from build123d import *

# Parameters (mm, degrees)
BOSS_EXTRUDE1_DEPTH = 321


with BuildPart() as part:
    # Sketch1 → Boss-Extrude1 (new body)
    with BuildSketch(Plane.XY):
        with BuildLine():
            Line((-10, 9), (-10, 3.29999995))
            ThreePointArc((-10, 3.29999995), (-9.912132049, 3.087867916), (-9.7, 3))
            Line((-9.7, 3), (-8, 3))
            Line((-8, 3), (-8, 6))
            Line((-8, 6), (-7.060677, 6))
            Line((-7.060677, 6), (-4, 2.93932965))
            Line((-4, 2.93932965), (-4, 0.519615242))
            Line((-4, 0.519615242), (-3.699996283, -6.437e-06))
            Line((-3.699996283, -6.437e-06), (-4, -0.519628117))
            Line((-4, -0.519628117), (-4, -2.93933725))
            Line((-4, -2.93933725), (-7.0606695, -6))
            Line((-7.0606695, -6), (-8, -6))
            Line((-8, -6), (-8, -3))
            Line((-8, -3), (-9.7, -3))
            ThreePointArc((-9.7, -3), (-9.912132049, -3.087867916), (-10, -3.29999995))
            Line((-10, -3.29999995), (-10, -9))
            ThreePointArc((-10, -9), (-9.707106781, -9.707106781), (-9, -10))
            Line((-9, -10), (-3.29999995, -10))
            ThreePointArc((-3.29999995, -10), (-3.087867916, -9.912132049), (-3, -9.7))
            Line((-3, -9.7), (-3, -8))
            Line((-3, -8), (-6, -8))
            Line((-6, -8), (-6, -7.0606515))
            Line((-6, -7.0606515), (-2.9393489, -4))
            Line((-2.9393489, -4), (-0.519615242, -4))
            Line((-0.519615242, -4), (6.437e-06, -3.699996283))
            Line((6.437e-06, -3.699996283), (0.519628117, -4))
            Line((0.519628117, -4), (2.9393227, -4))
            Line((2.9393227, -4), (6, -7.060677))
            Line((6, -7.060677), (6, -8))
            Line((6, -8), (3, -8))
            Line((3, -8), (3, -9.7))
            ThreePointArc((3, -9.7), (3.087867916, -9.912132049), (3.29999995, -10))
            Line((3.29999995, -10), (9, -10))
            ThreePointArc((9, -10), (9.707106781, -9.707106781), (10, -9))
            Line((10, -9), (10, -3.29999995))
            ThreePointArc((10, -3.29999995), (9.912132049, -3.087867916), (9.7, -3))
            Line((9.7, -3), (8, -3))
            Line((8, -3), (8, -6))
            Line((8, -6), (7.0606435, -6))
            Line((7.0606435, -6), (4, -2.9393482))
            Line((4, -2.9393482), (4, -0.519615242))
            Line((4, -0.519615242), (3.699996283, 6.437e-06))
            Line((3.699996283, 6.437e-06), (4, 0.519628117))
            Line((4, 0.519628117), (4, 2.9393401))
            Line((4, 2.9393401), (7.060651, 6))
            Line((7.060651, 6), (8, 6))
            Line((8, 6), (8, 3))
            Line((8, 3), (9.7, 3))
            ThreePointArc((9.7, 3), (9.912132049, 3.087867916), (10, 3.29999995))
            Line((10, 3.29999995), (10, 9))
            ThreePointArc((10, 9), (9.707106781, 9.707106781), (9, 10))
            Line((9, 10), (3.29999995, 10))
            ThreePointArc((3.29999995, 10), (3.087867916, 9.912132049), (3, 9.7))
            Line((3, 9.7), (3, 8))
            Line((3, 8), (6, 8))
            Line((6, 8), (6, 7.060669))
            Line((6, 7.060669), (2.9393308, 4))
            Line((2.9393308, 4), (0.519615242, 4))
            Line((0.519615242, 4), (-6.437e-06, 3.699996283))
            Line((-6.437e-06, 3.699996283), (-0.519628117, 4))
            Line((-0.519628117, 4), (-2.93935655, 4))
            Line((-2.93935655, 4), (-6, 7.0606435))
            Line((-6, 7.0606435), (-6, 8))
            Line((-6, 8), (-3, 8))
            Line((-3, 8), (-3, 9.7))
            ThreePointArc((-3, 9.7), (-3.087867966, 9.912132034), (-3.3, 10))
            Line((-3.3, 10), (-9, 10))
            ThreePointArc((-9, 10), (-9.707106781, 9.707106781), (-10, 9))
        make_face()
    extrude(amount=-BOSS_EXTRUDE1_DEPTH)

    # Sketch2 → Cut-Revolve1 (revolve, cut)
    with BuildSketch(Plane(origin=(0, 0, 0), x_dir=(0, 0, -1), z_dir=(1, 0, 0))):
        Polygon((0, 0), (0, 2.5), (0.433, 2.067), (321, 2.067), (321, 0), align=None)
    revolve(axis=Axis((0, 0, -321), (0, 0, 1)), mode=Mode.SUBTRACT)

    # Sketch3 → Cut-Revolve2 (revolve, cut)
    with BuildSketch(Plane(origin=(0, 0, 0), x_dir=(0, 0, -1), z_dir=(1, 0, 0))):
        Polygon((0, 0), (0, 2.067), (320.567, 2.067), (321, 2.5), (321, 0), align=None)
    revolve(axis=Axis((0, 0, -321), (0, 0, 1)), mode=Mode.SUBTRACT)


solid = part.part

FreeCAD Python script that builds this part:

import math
import FreeCAD as App
import Part
import Sketcher

V = App.Vector
Q = App.Units.Quantity


def add_polygon(sketch, points):
    """Adds a closed chain of lines whose ends are joined by coincident constraints."""
    first, n = sketch.GeometryCount, len(points)
    for a, b in zip(points, points[1:] + points[:1]):
        sketch.addGeometry(Part.LineSegment(App.Vector(*a, 0), App.Vector(*b, 0)), False)
    for i in range(n):
        sketch.addConstraint(Sketcher.Constraint("Coincident", first + i, 2, first + (i + 1) % n, 1))

doc = App.newDocument("Part")
params = doc.addObject("Spreadsheet::Sheet", "Params")
for row, (alias, value) in enumerate([
    ("sketch1_radius", "1 mm"),
    ("sketch1_radius2", "0.3 mm"),
    ("sketch1_width", "3 mm"),
    ("sketch1_width2", "1.7 mm"),
    ("sketch1_width3", "5.7 mm"),
    ("pad1_length", "321 mm"),
    ("sketch2_height", "321 mm"),
    ("sketch2_width", "2.5 mm"),
    ("groove_angle", "360 deg"),
    ("sketch3_height", "321 mm"),
    ("sketch3_width", "2.5 mm"),
    ("groove2_angle", "360 deg"),
], start=1):
    params.set(f"A{row}", alias)
    params.set(f"B{row}", "=" + value)
    params.setAlias(f"B{row}", alias)

body = doc.addObject("PartDesign::Body", "Body")

# Sketch on XY plane
sketch1 = body.newObject("Sketcher::SketchObject", "Sketch")
sketch1.AttachmentSupport = (doc.getObject("XY_Plane"), [""])
sketch1.MapMode = "FlatFace"
sketch1.addGeometry([
    Part.LineSegment(V(-10, 9, 0), V(-10, 3.3, 0)),  # 0
    Part.ArcOfCircle(Part.Circle(V(-9.7, 3.3, 0), V(0, 0, 1), 0.3), math.radians(180), math.radians(270)),  # 1
    Part.LineSegment(V(-9.7, 3, 0), V(-8, 3, 0)),  # 2
    Part.LineSegment(V(-8, 3, 0), V(-8, 6, 0)),  # 3
    Part.LineSegment(V(-8, 6, 0), V(-7.06, 6, 0)),  # 4
    Part.LineSegment(V(-7.06, 6, 0), V(-4, 2.94, 0)),  # 5
    Part.LineSegment(V(-4, 2.94, 0), V(-4, 0.52, 0)),  # 6
    Part.LineSegment(V(-4, 0.52, 0), V(-3.7, 0, 0)),  # 7
    Part.LineSegment(V(-3.7, 0, 0), V(-4, -0.52, 0)),  # 8
    Part.LineSegment(V(-4, -0.52, 0), V(-4, -2.94, 0)),  # 9
    Part.LineSegment(V(-4, -2.94, 0), V(-7.06, -6, 0)),  # 10
    Part.LineSegment(V(-7.06, -6, 0), V(-8, -6, 0)),  # 11
    Part.LineSegment(V(-8, -6, 0), V(-8, -3, 0)),  # 12
    Part.LineSegment(V(-8, -3, 0), V(-9.7, -3, 0)),  # 13
    Part.ArcOfCircle(Part.Circle(V(-9.7, -3.3, 0), V(0, 0, 1), 0.3), math.radians(90), math.radians(180)),  # 14
    Part.LineSegment(V(-10, -3.3, 0), V(-10, -9, 0)),  # 15
    Part.ArcOfCircle(Part.Circle(V(-9, -9, 0), V(0, 0, 1), 1), math.radians(-180), math.radians(-90)),  # 16
    Part.LineSegment(V(-9, -10, 0), V(-3.3, -10, 0)),  # 17
    Part.ArcOfCircle(Part.Circle(V(-3.3, -9.7, 0), V(0, 0, 1), 0.3), math.radians(-90), math.radians(0)),  # 18
    Part.LineSegment(V(-3, -9.7, 0), V(-3, -8, 0)),  # 19
    Part.LineSegment(V(-3, -8, 0), V(-6, -8, 0)),  # 20
    Part.LineSegment(V(-6, -8, 0), V(-6, -7.06, 0)),  # 21
    Part.LineSegment(V(-6, -7.06, 0), V(-2.94, -4, 0)),  # 22
    Part.LineSegment(V(-2.94, -4, 0), V(-0.52, -4, 0)),  # 23
    Part.LineSegment(V(-0.52, -4, 0), V(0, -3.7, 0)),  # 24
    Part.LineSegment(V(0, -3.7, 0), V(0.52, -4, 0)),  # 25
    Part.LineSegment(V(0.52, -4, 0), V(2.94, -4, 0)),  # 26
    Part.LineSegment(V(2.94, -4, 0), V(6, -7.06, 0)),  # 27
    Part.LineSegment(V(6, -7.06, 0), V(6, -8, 0)),  # 28
    Part.LineSegment(V(6, -8, 0), V(3, -8, 0)),  # 29
    Part.LineSegment(V(3, -8, 0), V(3, -9.7, 0)),  # 30
    Part.ArcOfCircle(Part.Circle(V(3.3, -9.7, 0), V(0, 0, 1), 0.3), math.radians(180), math.radians(270)),  # 31
    Part.LineSegment(V(3.3, -10, 0), V(9, -10, 0)),  # 32
    Part.ArcOfCircle(Part.Circle(V(9, -9, 0), V(0, 0, 1), 1), math.radians(-90), math.radians(0)),  # 33
    Part.LineSegment(V(10, -9, 0), V(10, -3.3, 0)),  # 34
    Part.ArcOfCircle(Part.Circle(V(9.7, -3.3, 0), V(0, 0, 1), 0.3), math.radians(0), math.radians(90)),  # 35
    Part.LineSegment(V(9.7, -3, 0), V(8, -3, 0)),  # 36
    Part.LineSegment(V(8, -3, 0), V(8, -6, 0)),  # 37
    Part.LineSegment(V(8, -6, 0), V(7.06, -6, 0)),  # 38
    Part.LineSegment(V(7.06, -6, 0), V(4, -2.94, 0)),  # 39
    Part.LineSegment(V(4, -2.94, 0), V(4, -0.52, 0)),  # 40
    Part.LineSegment(V(4, -0.52, 0), V(3.7, 0, 0)),  # 41
    Part.LineSegment(V(3.7, 0, 0), V(4, 0.52, 0)),  # 42
    Part.LineSegment(V(4, 0.52, 0), V(4, 2.94, 0)),  # 43
    Part.LineSegment(V(4, 2.94, 0), V(7.06, 6, 0)),  # 44
    Part.LineSegment(V(7.06, 6, 0), V(8, 6, 0)),  # 45
    Part.LineSegment(V(8, 6, 0), V(8, 3, 0)),  # 46
    Part.LineSegment(V(8, 3, 0), V(9.7, 3, 0)),  # 47
    Part.ArcOfCircle(Part.Circle(V(9.7, 3.3, 0), V(0, 0, 1), 0.3), math.radians(-90), math.radians(0)),  # 48
    Part.LineSegment(V(10, 3.3, 0), V(10, 9, 0)),  # 49
    Part.ArcOfCircle(Part.Circle(V(9, 9, 0), V(0, 0, 1), 1), math.radians(0), math.radians(90)),  # 50
    Part.LineSegment(V(9, 10, 0), V(3.3, 10, 0)),  # 51
    Part.ArcOfCircle(Part.Circle(V(3.3, 9.7, 0), V(0, 0, 1), 0.3), math.radians(90), math.radians(180)),  # 52
    Part.LineSegment(V(3, 9.7, 0), V(3, 8, 0)),  # 53
    Part.LineSegment(V(3, 8, 0), V(6, 8, 0)),  # 54
    Part.LineSegment(V(6, 8, 0), V(6, 7.06, 0)),  # 55
    Part.LineSegment(V(6, 7.06, 0), V(2.94, 4, 0)),  # 56
    Part.LineSegment(V(2.94, 4, 0), V(0.52, 4, 0)),  # 57
    Part.LineSegment(V(0.52, 4, 0), V(0, 3.7, 0)),  # 58
    Part.LineSegment(V(0, 3.7, 0), V(-0.52, 4, 0)),  # 59
    Part.LineSegment(V(-0.52, 4, 0), V(-2.94, 4, 0)),  # 60
    Part.LineSegment(V(-2.94, 4, 0), V(-6, 7.06, 0)),  # 61
    Part.LineSegment(V(-6, 7.06, 0), V(-6, 8, 0)),  # 62
    Part.LineSegment(V(-6, 8, 0), V(-3, 8, 0)),  # 63
    Part.LineSegment(V(-3, 8, 0), V(-3, 9.7, 0)),  # 64
    Part.ArcOfCircle(Part.Circle(V(-3.3, 9.7, 0), V(0, 0, 1), 0.3), math.radians(0), math.radians(90)),  # 65
    Part.LineSegment(V(-3.3, 10, 0), V(-9, 10, 0)),  # 66
    Part.ArcOfCircle(Part.Circle(V(-9, 9, 0), V(0, 0, 1), 1), math.radians(90), math.radians(180)),  # 67
], False)
sketch1.addConstraint([
    Sketcher.Constraint("Tangent", 0, 2, 1, 1),
    Sketcher.Constraint("Tangent", 1, 2, 2, 1),
    Sketcher.Constraint("Coincident", 2, 2, 3, 1),
    Sketcher.Constraint("Coincident", 3, 2, 4, 1),
    Sketcher.Constraint("Coincident", 4, 2, 5, 1),
    Sketcher.Constraint("Coincident", 5, 2, 6, 1),
    Sketcher.Constraint("Coincident", 6, 2, 7, 1),
    Sketcher.Constraint("Coincident", 7, 2, 8, 1),
    Sketcher.Constraint("Coincident", 8, 2, 9, 1),
    Sketcher.Constraint("Coincident", 9, 2, 10, 1),
    Sketcher.Constraint("Coincident", 10, 2, 11, 1),
    Sketcher.Constraint("Coincident", 11, 2, 12, 1),
    Sketcher.Constraint("Coincident", 12, 2, 13, 1),
    Sketcher.Constraint("Tangent", 13, 2, 14, 1),
    Sketcher.Constraint("Tangent", 14, 2, 15, 1),
    Sketcher.Constraint("Tangent", 15, 2, 16, 1),
    Sketcher.Constraint("Tangent", 16, 2, 17, 1),
    Sketcher.Constraint("Tangent", 17, 2, 18, 1),
    Sketcher.Constraint("Tangent", 18, 2, 19, 1),
    Sketcher.Constraint("Coincident", 19, 2, 20, 1),
    Sketcher.Constraint("Coincident", 20, 2, 21, 1),
    Sketcher.Constraint("Coincident", 21, 2, 22, 1),
    Sketcher.Constraint("Coincident", 22, 2, 23, 1),
    Sketcher.Constraint("Coincident", 23, 2, 24, 1),
    Sketcher.Constraint("Coincident", 24, 2, 25, 1),
    Sketcher.Constraint("Coincident", 25, 2, 26, 1),
    Sketcher.Constraint("Coincident", 26, 2, 27, 1),
    Sketcher.Constraint("Coincident", 27, 2, 28, 1),
    Sketcher.Constraint("Coincident", 28, 2, 29, 1),
    Sketcher.Constraint("Coincident", 29, 2, 30, 1),
    Sketcher.Constraint("Tangent", 30, 2, 31, 1),
    Sketcher.Constraint("Tangent", 31, 2, 32, 1),
    Sketcher.Constraint("Tangent", 32, 2, 33, 1),
    Sketcher.Constraint("Tangent", 33, 2, 34, 1),
    Sketcher.Constraint("Tangent", 34, 2, 35, 1),
    Sketcher.Constraint("Tangent", 35, 2, 36, 1),
    Sketcher.Constraint("Coincident", 36, 2, 37, 1),
    Sketcher.Constraint("Coincident", 37, 2, 38, 1),
    Sketcher.Constraint("Coincident", 38, 2, 39, 1),
    Sketcher.Constraint("Coincident", 39, 2, 40, 1),
    Sketcher.Constraint("Coincident", 40, 2, 41, 1),
    Sketcher.Constraint("Coincident", 41, 2, 42, 1),
    Sketcher.Constraint("Coincident", 42, 2, 43, 1),
    Sketcher.Constraint("Coincident", 43, 2, 44, 1),
    Sketcher.Constraint("Coincident", 44, 2, 45, 1),
    Sketcher.Constraint("Coincident", 45, 2, 46, 1),
    Sketcher.Constraint("Coincident", 46, 2, 47, 1),
    Sketcher.Constraint("Tangent", 47, 2, 48, 1),
    Sketcher.Constraint("Tangent", 48, 2, 49, 1),
    Sketcher.Constraint("Tangent", 49, 2, 50, 1),
    Sketcher.Constraint("Tangent", 50, 2, 51, 1),
    Sketcher.Constraint("Tangent", 51, 2, 52, 1),
    Sketcher.Constraint("Tangent", 52, 2, 53, 1),
    Sketcher.Constraint("Coincident", 53, 2, 54, 1),
    Sketcher.Constraint("Coincident", 54, 2, 55, 1),
    Sketcher.Constraint("Coincident", 55, 2, 56, 1),
    Sketcher.Constraint("Coincident", 56, 2, 57, 1),
    Sketcher.Constraint("Coincident", 57, 2, 58, 1),
    Sketcher.Constraint("Coincident", 58, 2, 59, 1),
    Sketcher.Constraint("Coincident", 59, 2, 60, 1),
    Sketcher.Constraint("Coincident", 60, 2, 61, 1),
    Sketcher.Constraint("Coincident", 61, 2, 62, 1),
    Sketcher.Constraint("Coincident", 62, 2, 63, 1),
    Sketcher.Constraint("Coincident", 63, 2, 64, 1),
    Sketcher.Constraint("Tangent", 64, 2, 65, 1),
    Sketcher.Constraint("Tangent", 65, 2, 66, 1),
    Sketcher.Constraint("Tangent", 66, 2, 67, 1),
    Sketcher.Constraint("Tangent", 67, 2, 0, 1),
    Sketcher.Constraint("Vertical", 0),
    Sketcher.Constraint("Horizontal", 2),
    Sketcher.Constraint("Vertical", 3),
    Sketcher.Constraint("Horizontal", 4),
    Sketcher.Constraint("Vertical", 6),
    Sketcher.Constraint("Vertical", 9),
    Sketcher.Constraint("Horizontal", 11),
    Sketcher.Constraint("Vertical", 12),
    Sketcher.Constraint("Horizontal", 13),
    Sketcher.Constraint("Vertical", 15),
    Sketcher.Constraint("Horizontal", 17),
    Sketcher.Constraint("Vertical", 19),
    Sketcher.Constraint("Horizontal", 20),
    Sketcher.Constraint("Vertical", 21),
    Sketcher.Constraint("Horizontal", 23),
    Sketcher.Constraint("Horizontal", 26),
    Sketcher.Constraint("Vertical", 28),
    Sketcher.Constraint("Horizontal", 29),
    Sketcher.Constraint("Vertical", 30),
    Sketcher.Constraint("Horizontal", 32),
    Sketcher.Constraint("Vertical", 34),
    Sketcher.Constraint("Horizontal", 36),
    Sketcher.Constraint("Vertical", 37),
    Sketcher.Constraint("Horizontal", 38),
    Sketcher.Constraint("Vertical", 40),
    Sketcher.Constraint("Vertical", 43),
    Sketcher.Constraint("Horizontal", 45),
    Sketcher.Constraint("Vertical", 46),
    Sketcher.Constraint("Horizontal", 47),
    Sketcher.Constraint("Vertical", 49),
    Sketcher.Constraint("Horizontal", 51),
    Sketcher.Constraint("Vertical", 53),
    Sketcher.Constraint("Horizontal", 54),
    Sketcher.Constraint("Vertical", 55),
    Sketcher.Constraint("Horizontal", 57),
    Sketcher.Constraint("Horizontal", 60),
    Sketcher.Constraint("Vertical", 62),
    Sketcher.Constraint("Horizontal", 63),
    Sketcher.Constraint("Vertical", 64),
    Sketcher.Constraint("Horizontal", 66),
    Sketcher.Constraint("Equal", 1, 14),
    Sketcher.Constraint("Equal", 14, 18),
    Sketcher.Constraint("Equal", 18, 31),
    Sketcher.Constraint("Equal", 16, 33),
    Sketcher.Constraint("Equal", 31, 35),
    Sketcher.Constraint("Equal", 35, 48),
    Sketcher.Constraint("Equal", 33, 50),
    Sketcher.Constraint("Equal", 48, 52),
    Sketcher.Constraint("Equal", 52, 65),
    Sketcher.Constraint("Equal", 50, 67),
    Sketcher.Constraint("Symmetric", 1, 3, 35, 3, -1, 1),
    Sketcher.Constraint("Symmetric", 14, 3, 48, 3, -1, 1),
    Sketcher.Constraint("Symmetric", 18, 3, 52, 3, -1, 1),
    Sketcher.Constraint("Symmetric", 31, 3, 65, 3, -1, 1),
    Sketcher.Constraint("Symmetric", 3, 2, 37, 2, -1, 1),
    Sketcher.Constraint("Symmetric", 6, 2, 40, 2, -1, 1),
    Sketcher.Constraint("Symmetric", 7, 2, 41, 2, -1, 1),
    Sketcher.Constraint("Symmetric", 8, 2, 42, 2, -1, 1),
    Sketcher.Constraint("Symmetric", 11, 2, 45, 2, -1, 1),
    Sketcher.Constraint("Symmetric", 20, 2, 54, 2, -1, 1),
    Sketcher.Constraint("Symmetric", 23, 2, 57, 2, -1, 1),
    Sketcher.Constraint("Symmetric", 24, 2, 58, 2, -1, 1),
    Sketcher.Constraint("Symmetric", 25, 2, 59, 2, -1, 1),
    Sketcher.Constraint("Symmetric", 28, 2, 62, 2, -1, 1),
    Sketcher.Constraint("Symmetric", 18, 3, 31, 3, -2),
    Sketcher.Constraint("Symmetric", 14, 3, 35, 3, -2),
    Sketcher.Constraint("Symmetric", 20, 2, 28, 2, -2),
    Sketcher.Constraint("Symmetric", 11, 2, 37, 2, -2),
    Sketcher.Constraint("Symmetric", 5, 2, 9, 2, -1),
    Sketcher.Constraint("Symmetric", 26, 2, 56, 2, -1),
    Sketcher.Constraint("Parallel", 10, 22),
    Sketcher.Constraint("Perpendicular", 7, 24),
    Sketcher.Constraint("Perpendicular", 8, 25),
    Sketcher.Constraint("Perpendicular", 22, 27),
    Sketcher.Constraint("Parallel", 27, 39),
    Sketcher.Constraint("Perpendicular", 27, 44),
    Sketcher.Constraint("Parallel", 44, 56),
    Sketcher.Constraint("Perpendicular", 56, 61),
    Sketcher.Constraint("Equal", 66, 0),
    Sketcher.Constraint("Equal", 63, 3),
    Sketcher.Constraint("Equal", 57, 6),
    Sketcher.Constraint("Equal", 47, 19),
    Sketcher.Constraint("Equal", 45, 21),
    Sketcher.Constraint("Equal", 4, 28),
    Sketcher.Constraint("Equal", 23, 40),
    Sketcher.Constraint("Equal", 11, 55),
    Sketcher.Constraint("Equal", 38, 62),
    Sketcher.Constraint("Equal", 7, 8),
    Sketcher.Constraint("Equal", 8, 24),
    Sketcher.Constraint("Radius", 16, 1.0),
    Sketcher.Constraint("Radius", 1, 0.3),
    Sketcher.Constraint("DistanceX", 20, 2, 20, 1, 3.0),
    Sketcher.Constraint("Angle", 7, Q("-60 deg")),
    Sketcher.Constraint("Angle", 22, Q("45.000004 deg")),
    Sketcher.Constraint("DistanceX", 2, 1, 2, 2, 1.7),
    Sketcher.Constraint("DistanceX", 17, 1, 17, 2, 5.7),
    Sketcher.Constraint("DistanceX", 16, 3, -1, 1, 9.0),
    Sketcher.Constraint("DistanceY", 16, 3, -1, 1, 9.0),
    Sketcher.Constraint("DistanceX", 5, 2, -1, 1, 4.0),
    Sketcher.Constraint("DistanceY", 22, 2, -1, 1, 4.0),
    Sketcher.Constraint("DistanceX", 11, 2, 11, 1, 0.93933),
    Sketcher.Constraint("DistanceX", 45, 1, 45, 2, 0.939349),
    Sketcher.Constraint("DistanceX", 60, 2, 60, 1, 2.419728),
    Sketcher.Constraint("DistanceX", 23, 1, 23, 2, 2.419734),
])
sketch1.setExpression("Constraints[157]", "Params.sketch1_radius")
sketch1.setExpression("Constraints[158]", "Params.sketch1_radius2")
sketch1.setExpression("Constraints[159]", "Params.sketch1_width")
sketch1.setExpression("Constraints[162]", "Params.sketch1_width2")
sketch1.setExpression("Constraints[163]", "Params.sketch1_width3")
pad1 = body.newObject("PartDesign::Pad", "Pad")
pad1.Profile = sketch1
pad1.setExpression("Length", "Params.pad1_length")
pad1.Reversed = True

# Sketch on YZ plane
sketch2 = body.newObject("Sketcher::SketchObject", "Sketch001")
sketch2.AttachmentSupport = (doc.getObject("YZ_Plane"), [""])
sketch2.MapMode = "FlatFace"
add_polygon(sketch2, [(2.5, 0), (0, 0), (0, -321), (2.1, -321), (2.1, -0.4)])  # lines 0-4
sketch2.addConstraint([
    Sketcher.Constraint("Horizontal", 0),
    Sketcher.Constraint("Vertical", 1),
    Sketcher.Constraint("Horizontal", 2),
    Sketcher.Constraint("Vertical", 3),
    Sketcher.Constraint("Coincident", 0, 2, -1, 1),
    Sketcher.Constraint("DistanceY", 1, 2, 1, 1, 321.0),
    Sketcher.Constraint("Angle", 4, Q("45 deg")),
    Sketcher.Constraint("DistanceX", 0, 2, 0, 1, 2.5),
    Sketcher.Constraint("DistanceX", 2, 1, 2, 2, 2.067),
])
sketch2.setExpression("Constraints[10]", "Params.sketch2_height")
sketch2.setExpression("Constraints[12]", "Params.sketch2_width")
groove = body.newObject("PartDesign::Groove", "Groove")
groove.Profile = sketch2
groove.ReferenceAxis = (sketch2, ["V_Axis"])
groove.setExpression("Angle", "Params.groove_angle")

# Sketch on YZ plane
sketch3 = body.newObject("Sketcher::SketchObject", "Sketch002")
sketch3.AttachmentSupport = (doc.getObject("YZ_Plane"), [""])
sketch3.MapMode = "FlatFace"
add_polygon(sketch3, [(2.1, 0), (0, 0), (0, -321), (2.5, -321), (2.1, -320.6)])  # lines 0-4
sketch3.addConstraint([
    Sketcher.Constraint("Horizontal", 0),
    Sketcher.Constraint("Vertical", 1),
    Sketcher.Constraint("Horizontal", 2),
    Sketcher.Constraint("Vertical", 4),
    Sketcher.Constraint("Coincident", 0, 2, -1, 1),
    Sketcher.Constraint("DistanceY", 1, 2, 1, 1, 321.0),
    Sketcher.Constraint("Angle", 3, Q("135 deg")),
    Sketcher.Constraint("DistanceX", 2, 1, 2, 2, 2.5),
    Sketcher.Constraint("DistanceX", 0, 2, 0, 1, 2.067),
])
sketch3.setExpression("Constraints[10]", "Params.sketch3_height")
sketch3.setExpression("Constraints[12]", "Params.sketch3_width")
groove2 = body.newObject("PartDesign::Groove", "Groove001")
groove2.Profile = sketch3
groove2.ReferenceAxis = (sketch3, ["V_Axis"])
groove2.setExpression("Angle", "Params.groove2_angle")

doc.recompute()
